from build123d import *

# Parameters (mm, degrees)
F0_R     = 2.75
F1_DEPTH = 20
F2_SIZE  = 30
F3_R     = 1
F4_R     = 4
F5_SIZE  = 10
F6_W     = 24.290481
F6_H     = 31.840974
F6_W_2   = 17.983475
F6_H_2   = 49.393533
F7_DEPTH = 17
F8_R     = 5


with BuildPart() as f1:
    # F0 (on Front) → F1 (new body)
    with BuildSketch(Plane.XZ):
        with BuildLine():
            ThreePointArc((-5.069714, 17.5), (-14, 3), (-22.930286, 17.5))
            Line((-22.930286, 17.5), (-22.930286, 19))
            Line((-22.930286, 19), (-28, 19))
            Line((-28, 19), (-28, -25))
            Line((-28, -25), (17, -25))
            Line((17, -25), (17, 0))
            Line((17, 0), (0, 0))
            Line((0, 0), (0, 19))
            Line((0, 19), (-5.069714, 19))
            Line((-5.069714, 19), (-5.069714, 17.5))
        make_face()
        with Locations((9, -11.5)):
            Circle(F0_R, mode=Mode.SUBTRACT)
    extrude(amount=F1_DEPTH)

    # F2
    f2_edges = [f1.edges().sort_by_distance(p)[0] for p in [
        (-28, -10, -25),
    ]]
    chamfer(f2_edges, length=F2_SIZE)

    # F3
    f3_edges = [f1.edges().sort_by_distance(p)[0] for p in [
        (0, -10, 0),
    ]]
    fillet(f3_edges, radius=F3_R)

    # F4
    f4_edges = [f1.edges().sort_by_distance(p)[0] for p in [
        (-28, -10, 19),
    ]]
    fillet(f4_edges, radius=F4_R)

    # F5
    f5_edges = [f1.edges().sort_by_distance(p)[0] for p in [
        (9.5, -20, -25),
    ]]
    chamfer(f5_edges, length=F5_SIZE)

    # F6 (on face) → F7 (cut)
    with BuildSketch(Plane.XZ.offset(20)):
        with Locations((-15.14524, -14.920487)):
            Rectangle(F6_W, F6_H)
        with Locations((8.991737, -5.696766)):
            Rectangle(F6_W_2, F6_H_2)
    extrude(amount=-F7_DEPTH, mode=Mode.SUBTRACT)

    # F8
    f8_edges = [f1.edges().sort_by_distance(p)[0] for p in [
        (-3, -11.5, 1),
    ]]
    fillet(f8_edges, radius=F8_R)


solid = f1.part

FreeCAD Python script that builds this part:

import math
import FreeCAD as App
import Part
import Sketcher


def edges_at(feature, points):
    """Names of the edges that pass closest to the given points."""
    edges = feature.Shape.Edges
    near = lambda p: min(range(len(edges)), key=lambda i: edges[i].distToShape(Part.Vertex(*p))[0])
    return sorted({f"Edge{near(p) + 1}" for p in points})


def add_polygon(sketch, points):
    """Adds a closed chain of lines whose ends are joined by coincident constraints."""
    first, n = sketch.GeometryCount, len(points)
    for a, b in zip(points, points[1:] + points[:1]):
        sketch.addGeometry(Part.LineSegment(App.Vector(*a, 0), App.Vector(*b, 0)), False)
    for i in range(n):
        sketch.addConstraint(Sketcher.Constraint("Coincident", first + i, 2, first + (i + 1) % n, 1))

doc = App.newDocument("Part")
body = doc.addObject("PartDesign::Body", "Body")

sketch1 = body.newObject("Sketcher::SketchObject", "Sketch")
sketch1.AttachmentSupport = (doc.getObject("XZ_Plane"), [""])
sketch1.MapMode = "FlatFace"
sketch1.addGeometry(Part.ArcOfCircle(Part.Circle(App.Vector(-14, 13, 0), App.Vector(0, 0, 1), 10), math.radians(153), math.radians(387)), False)
sketch1.addGeometry(Part.LineSegment(App.Vector(-22.9, 17.5, 0), App.Vector(-22.9, 19, 0)), False)
sketch1.addGeometry(Part.LineSegment(App.Vector(-22.9, 19, 0), App.Vector(-28, 19, 0)), False)
sketch1.addGeometry(Part.LineSegment(App.Vector(-28, 19, 0), App.Vector(-28, -25, 0)), False)
sketch1.addGeometry(Part.LineSegment(App.Vector(-28, -25, 0), App.Vector(17, -25, 0)), False)
sketch1.addGeometry(Part.LineSegment(App.Vector(17, -25, 0), App.Vector(17, 0, 0)), False)
sketch1.addGeometry(Part.LineSegment(App.Vector(17, 0, 0), App.Vector(0, 0, 0)), False)
sketch1.addGeometry(Part.LineSegment(App.Vector(0, 0, 0), App.Vector(0, 19, 0)), False)
sketch1.addGeometry(Part.LineSegment(App.Vector(0, 19, 0), App.Vector(-5.1, 19, 0)), False)
sketch1.addGeometry(Part.LineSegment(App.Vector(-5.1, 19, 0), App.Vector(-5.1, 17.5, 0)), False)
sketch1.addGeometry(Part.Circle(App.Vector(9, -11.5, 0), App.Vector(0, 0, 1), 2.8), False)
sketch1.addConstraint(Sketcher.Constraint("Coincident", 0, 1, 1, 1))
sketch1.addConstraint(Sketcher.Constraint("Coincident", 1, 2, 2, 1))
sketch1.addConstraint(Sketcher.Constraint("Coincident", 2, 2, 3, 1))
sketch1.addConstraint(Sketcher.Constraint("Coincident", 3, 2, 4, 1))
sketch1.addConstraint(Sketcher.Constraint("Coincident", 4, 2, 5, 1))
sketch1.addConstraint(Sketcher.Constraint("Coincident", 5, 2, 6, 1))
sketch1.addConstraint(Sketcher.Constraint("Coincident", 6, 2, 7, 1))
sketch1.addConstraint(Sketcher.Constraint("Coincident", 7, 2, 8, 1))
sketch1.addConstraint(Sketcher.Constraint("Coincident", 8, 2, 9, 1))
sketch1.addConstraint(Sketcher.Constraint("Coincident", 9, 2, 0, 2))
sketch1.addConstraint(Sketcher.Constraint("Vertical", 1))
sketch1.addConstraint(Sketcher.Constraint("Horizontal", 2))
sketch1.addConstraint(Sketcher.Constraint("Vertical", 3))
sketch1.addConstraint(Sketcher.Constraint("Horizontal", 4))
sketch1.addConstraint(Sketcher.Constraint("Vertical", 5))
sketch1.addConstraint(Sketcher.Constraint("Horizontal", 6))
sketch1.addConstraint(Sketcher.Constraint("Vertical", 7))
sketch1.addConstraint(Sketcher.Constraint("Horizontal", 8))
sketch1.addConstraint(Sketcher.Constraint("Vertical", 9))
sketch1.addConstraint(Sketcher.Constraint("Coincident", 6, 2, -1, 1))
sketch1.addConstraint(Sketcher.Constraint("Horizontal", 2, 2, 7, 2))
sketch1.addConstraint(Sketcher.Constraint("Horizontal", 0, 1, 9, 2))
sketch1.addConstraint(Sketcher.Constraint("Equal", 2, 8))
sketch1.addConstraint(Sketcher.Constraint("Radius", 0, 10.0))
sketch1.addConstraint(Sketcher.Constraint("Diameter", 10, 5.5))
sketch1.addConstraint(Sketcher.Constraint("DistanceX", 4, 1, 4, 2, 45.0))
sketch1.addConstraint(Sketcher.Constraint("DistanceX", 6, 2, 6, 1, 17.0))
sketch1.addConstraint(Sketcher.Constraint("DistanceY", 3, 2, 3, 1, 44.0))
sketch1.addConstraint(Sketcher.Constraint("DistanceY", 5, 1, 5, 2, 25.0))
sketch1.addConstraint(Sketcher.Constraint("DistanceY", 1, 1, 1, 2, 1.5))
sketch1.addConstraint(Sketcher.Constraint("DistanceY", -1, 1, 0, 3, 13.0))
sketch1.addConstraint(Sketcher.Constraint("DistanceX", -1, 1, 10, 3, 9.0))
sketch1.addConstraint(Sketcher.Constraint("DistanceY", 10, 3, 0, 1, 29.0))
pad1 = body.newObject("PartDesign::Pad", "Pad")
pad1.Profile = sketch1
pad1.Length = 20
doc.recompute()

chamfer = body.newObject("PartDesign::Chamfer", "Chamfer")
chamfer.Base = (pad1, edges_at(pad1, [(-28, -10, -25)]))
chamfer.Size = 30
doc.recompute()

fillet = body.newObject("PartDesign::Fillet", "Fillet")
fillet.Base = (chamfer, edges_at(chamfer, [(0, -10, 0)]))
fillet.Radius = 1
doc.recompute()

fillet2 = body.newObject("PartDesign::Fillet", "Fillet001")
fillet2.Base = (fillet, edges_at(fillet, [(-28, -10, 19)]))
fillet2.Radius = 4
doc.recompute()

chamfer2 = body.newObject("PartDesign::Chamfer", "Chamfer001")
chamfer2.Base = (fillet2, edges_at(fillet2, [(9.5, -20, -25)]))
chamfer2.Size = 10

sketch2 = body.newObject("Sketcher::SketchObject", "Sketch001")
sketch2.AttachmentSupport = (doc.getObject("XZ_Plane"), [""])
sketch2.MapMode = "FlatFace"
sketch2.AttachmentOffset = App.Placement(App.Vector(0, 0, 20), App.Rotation())
add_polygon(sketch2, [(-27, 1), (-27, -31), (-3, -31), (-3, 1)])
add_polygon(sketch2, [(0, 19), (0, -30), (18, -30), (18, 19)])
sketch2.addConstraint(Sketcher.Constraint("Vertical", 0))
sketch2.addConstraint(Sketcher.Constraint("Horizontal", 1))
sketch2.addConstraint(Sketcher.Constraint("Vertical", 2))
sketch2.addConstraint(Sketcher.Constraint("Horizontal", 3))
sketch2.addConstraint(Sketcher.Constraint("Vertical", 4))
sketch2.addConstraint(Sketcher.Constraint("Horizontal", 5))
sketch2.addConstraint(Sketcher.Constraint("Vertical", 6))
sketch2.addConstraint(Sketcher.Constraint("Horizontal", 7))
sketch2.addConstraint(Sketcher.Constraint("PointOnObject", 4, 2, -2))
sketch2.addConstraint(Sketcher.Constraint("DistanceX", 1, 2, -1, 1, 2.999999))
sketch2.addConstraint(Sketcher.Constraint("DistanceY", -1, 1, 2, 2, 1.0))
sketch2.addConstraint(Sketcher.Constraint("DistanceY", -1, 1, 6, 2, 19.0))
sketch2.addConstraint(Sketcher.Constraint("DistanceX", 1, 1, 1, 2, 24.290481))
sketch2.addConstraint(Sketcher.Constraint("DistanceX", 5, 1, 5, 2, 17.983475))
sketch2.addConstraint(Sketcher.Constraint("DistanceY", 0, 2, 0, 1, 31.840974))
sketch2.addConstraint(Sketcher.Constraint("DistanceY", 4, 2, 4, 1, 49.393533))
pocket1 = body.newObject("PartDesign::Pocket", "Pocket")
pocket1.Profile = sketch2
pocket1.Length = 17
doc.recompute()

fillet3 = body.newObject("PartDesign::Fillet", "Fillet002")
fillet3.Base = (pocket1, edges_at(pocket1, [(-3, -11.5, 1)]))
fillet3.Radius = 5

doc.recompute()
